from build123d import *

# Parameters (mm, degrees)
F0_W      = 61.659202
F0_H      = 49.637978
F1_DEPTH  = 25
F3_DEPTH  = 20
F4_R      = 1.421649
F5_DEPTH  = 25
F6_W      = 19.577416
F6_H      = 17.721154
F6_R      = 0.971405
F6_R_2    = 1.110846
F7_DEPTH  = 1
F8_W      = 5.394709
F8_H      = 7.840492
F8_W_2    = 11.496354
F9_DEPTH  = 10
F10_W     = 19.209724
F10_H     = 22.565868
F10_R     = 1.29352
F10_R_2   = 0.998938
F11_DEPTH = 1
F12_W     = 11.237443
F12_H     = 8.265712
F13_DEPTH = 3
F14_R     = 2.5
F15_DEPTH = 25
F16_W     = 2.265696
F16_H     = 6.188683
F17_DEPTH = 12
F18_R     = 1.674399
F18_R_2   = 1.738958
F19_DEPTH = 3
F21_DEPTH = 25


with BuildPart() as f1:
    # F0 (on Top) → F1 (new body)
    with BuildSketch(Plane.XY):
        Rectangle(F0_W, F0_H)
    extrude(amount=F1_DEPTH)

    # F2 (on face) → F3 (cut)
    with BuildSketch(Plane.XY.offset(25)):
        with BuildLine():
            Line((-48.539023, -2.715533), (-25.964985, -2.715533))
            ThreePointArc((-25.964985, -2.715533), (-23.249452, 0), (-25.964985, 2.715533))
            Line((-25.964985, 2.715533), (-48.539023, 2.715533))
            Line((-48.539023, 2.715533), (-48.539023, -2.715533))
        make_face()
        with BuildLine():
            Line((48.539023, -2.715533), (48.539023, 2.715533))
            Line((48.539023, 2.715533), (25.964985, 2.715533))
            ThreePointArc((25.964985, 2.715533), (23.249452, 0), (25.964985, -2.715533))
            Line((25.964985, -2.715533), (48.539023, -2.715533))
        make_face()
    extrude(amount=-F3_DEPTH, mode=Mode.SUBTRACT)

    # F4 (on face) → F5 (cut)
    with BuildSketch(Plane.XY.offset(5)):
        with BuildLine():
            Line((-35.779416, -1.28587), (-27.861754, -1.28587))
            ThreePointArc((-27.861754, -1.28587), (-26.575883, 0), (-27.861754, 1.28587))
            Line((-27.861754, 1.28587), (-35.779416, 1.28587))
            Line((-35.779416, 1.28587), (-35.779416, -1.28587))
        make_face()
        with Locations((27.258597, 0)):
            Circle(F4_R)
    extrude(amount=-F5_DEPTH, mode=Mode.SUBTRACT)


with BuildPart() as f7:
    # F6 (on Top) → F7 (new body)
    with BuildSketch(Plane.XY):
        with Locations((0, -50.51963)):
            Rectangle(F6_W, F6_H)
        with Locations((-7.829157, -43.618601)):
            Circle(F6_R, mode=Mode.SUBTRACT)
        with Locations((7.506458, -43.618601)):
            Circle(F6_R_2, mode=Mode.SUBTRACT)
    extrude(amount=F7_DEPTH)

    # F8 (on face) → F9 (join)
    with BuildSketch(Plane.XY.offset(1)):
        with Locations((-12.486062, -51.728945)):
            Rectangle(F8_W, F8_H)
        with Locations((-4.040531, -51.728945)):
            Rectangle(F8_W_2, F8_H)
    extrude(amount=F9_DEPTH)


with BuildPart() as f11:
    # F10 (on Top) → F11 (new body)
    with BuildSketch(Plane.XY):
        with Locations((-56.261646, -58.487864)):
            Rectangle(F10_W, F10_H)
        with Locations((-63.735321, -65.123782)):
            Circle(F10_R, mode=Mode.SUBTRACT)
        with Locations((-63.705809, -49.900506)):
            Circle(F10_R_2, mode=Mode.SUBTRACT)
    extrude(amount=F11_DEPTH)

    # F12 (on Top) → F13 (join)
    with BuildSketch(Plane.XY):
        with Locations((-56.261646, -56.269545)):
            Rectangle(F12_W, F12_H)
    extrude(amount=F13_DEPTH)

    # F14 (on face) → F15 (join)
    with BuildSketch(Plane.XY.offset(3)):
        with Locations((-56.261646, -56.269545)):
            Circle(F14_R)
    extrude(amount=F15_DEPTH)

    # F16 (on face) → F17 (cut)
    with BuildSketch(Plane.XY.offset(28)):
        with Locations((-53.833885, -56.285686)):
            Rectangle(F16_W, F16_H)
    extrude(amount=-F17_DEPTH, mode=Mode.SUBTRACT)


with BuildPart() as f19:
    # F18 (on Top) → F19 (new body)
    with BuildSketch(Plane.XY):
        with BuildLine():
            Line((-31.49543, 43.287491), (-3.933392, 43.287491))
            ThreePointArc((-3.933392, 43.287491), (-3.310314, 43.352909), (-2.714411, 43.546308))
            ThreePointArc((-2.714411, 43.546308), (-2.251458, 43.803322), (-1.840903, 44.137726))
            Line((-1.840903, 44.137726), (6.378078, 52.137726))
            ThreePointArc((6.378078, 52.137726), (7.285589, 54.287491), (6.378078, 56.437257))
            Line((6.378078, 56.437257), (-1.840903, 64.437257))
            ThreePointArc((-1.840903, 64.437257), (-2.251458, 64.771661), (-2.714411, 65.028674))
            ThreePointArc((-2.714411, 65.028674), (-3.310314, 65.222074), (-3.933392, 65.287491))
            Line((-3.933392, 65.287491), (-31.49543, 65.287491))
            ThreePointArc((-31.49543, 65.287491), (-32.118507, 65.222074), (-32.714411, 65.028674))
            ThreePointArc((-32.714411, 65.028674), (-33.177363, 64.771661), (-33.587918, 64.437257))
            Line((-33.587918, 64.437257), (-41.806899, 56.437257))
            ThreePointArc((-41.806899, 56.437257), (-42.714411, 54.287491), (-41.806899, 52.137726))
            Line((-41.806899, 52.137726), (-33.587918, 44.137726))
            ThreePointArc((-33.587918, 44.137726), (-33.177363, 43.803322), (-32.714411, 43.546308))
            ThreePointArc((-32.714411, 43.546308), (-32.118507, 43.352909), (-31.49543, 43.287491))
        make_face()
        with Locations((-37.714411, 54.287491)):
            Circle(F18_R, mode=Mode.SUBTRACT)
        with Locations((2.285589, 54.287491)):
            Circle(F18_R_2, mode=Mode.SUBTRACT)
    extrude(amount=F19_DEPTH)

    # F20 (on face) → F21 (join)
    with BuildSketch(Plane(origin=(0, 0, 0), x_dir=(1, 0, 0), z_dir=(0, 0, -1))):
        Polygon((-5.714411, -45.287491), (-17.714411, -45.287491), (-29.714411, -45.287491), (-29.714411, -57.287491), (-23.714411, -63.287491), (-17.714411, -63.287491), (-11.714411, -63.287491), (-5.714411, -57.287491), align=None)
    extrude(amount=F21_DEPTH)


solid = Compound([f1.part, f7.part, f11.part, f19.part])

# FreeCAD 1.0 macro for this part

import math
import FreeCAD as App
import Part
import Sketcher

V = App.Vector
Q = App.Units.Quantity

doc = App.newDocument("Part")
body = doc.addObject("PartDesign::Body", "Body")

sketch1 = body.newObject("Sketcher::SketchObject", "Sketch")
sketch1.AttachmentSupport = (doc.getObject("XY_Plane"), [""])
sketch1.MapMode = "FlatFace"
sketch1.addGeometry([
    Part.LineSegment(V(-31, 25, 0), V(-31, -25, 0)),
    Part.LineSegment(V(-31, -25, 0), V(31, -25, 0)),
    Part.LineSegment(V(31, -25, 0), V(31, 25, 0)),
    Part.LineSegment(V(31, 25, 0), V(-31, 25, 0)),
], False)
sketch1.addConstraint([
    Sketcher.Constraint("Coincident", 0, 2, 1, 1),
    Sketcher.Constraint("Coincident", 1, 2, 2, 1),
    Sketcher.Constraint("Coincident", 2, 2, 3, 1),
    Sketcher.Constraint("Coincident", 3, 2, 0, 1),
    Sketcher.Constraint("Vertical", 0),
    Sketcher.Constraint("Horizontal", 1),
    Sketcher.Constraint("Vertical", 2),
    Sketcher.Constraint("Horizontal", 3),
    Sketcher.Constraint("Symmetric", 0, 2, 2, 2, -1, 1),
    Sketcher.Constraint("DistanceX", 0, 2, -1, 1, Q("30.829601 mm")),
    Sketcher.Constraint("DistanceY", 0, 2, 0, 1, Q("49.637978 mm")),
])
pad1 = body.newObject("PartDesign::Pad", "Pad")
pad1.Profile = sketch1
pad1.Length = 25

sketch2 = body.newObject("Sketcher::SketchObject", "Sketch001")
sketch2.AttachmentSupport = (doc.getObject("XY_Plane"), [""])
sketch2.MapMode = "FlatFace"
sketch2.AttachmentOffset = App.Placement(V(0, 0, 25), App.Rotation())
sketch2.addGeometry([
    Part.LineSegment(V(-48.5, -2.7, 0), V(-26, -2.7, 0)),
    Part.ArcOfCircle(Part.Circle(V(-26, 0, 0), V(0, 0, 1), 2.7), math.radians(-90), math.radians(90)),
    Part.LineSegment(V(-26, 2.7, 0), V(-48.5, 2.7, 0)),
    Part.LineSegment(V(-48.5, 2.7, 0), V(-48.5, -2.7, 0)),
    Part.LineSegment(V(48.5, -2.7, 0), V(48.5, 2.7, 0)),
    Part.LineSegment(V(48.5, 2.7, 0), V(26, 2.7, 0)),
    Part.ArcOfCircle(Part.Circle(V(26, 0, 0), V(0, 0, 1), 2.7), math.radians(90), math.radians(270)),
    Part.LineSegment(V(26, -2.7, 0), V(48.5, -2.7, 0)),
], False)
sketch2.addConstraint([
    Sketcher.Constraint("Tangent", 0, 2, 1, 1),
    Sketcher.Constraint("Tangent", 1, 2, 2, 1),
    Sketcher.Constraint("Coincident", 2, 2, 3, 1),
    Sketcher.Constraint("Coincident", 3, 2, 0, 1),
    Sketcher.Constraint("Coincident", 4, 2, 5, 1),
    Sketcher.Constraint("Tangent", 5, 2, 6, 1),
    Sketcher.Constraint("Tangent", 6, 2, 7, 1),
    Sketcher.Constraint("Coincident", 7, 2, 4, 1),
    Sketcher.Constraint("Horizontal", 0),
    Sketcher.Constraint("Horizontal", 2),
    Sketcher.Constraint("Vertical", 3),
    Sketcher.Constraint("Vertical", 4),
    Sketcher.Constraint("Horizontal", 5),
    Sketcher.Constraint("Horizontal", 7),
    Sketcher.Constraint("Equal", 1, 6),
    Sketcher.Constraint("Symmetric", 1, 3, 6, 3, -1, 1),
    Sketcher.Constraint("Symmetric", 2, 2, 4, 2, -2),
    Sketcher.Constraint("Radius", 1, Q("2.715533 mm")),
    Sketcher.Constraint("DistanceX", 0, 1, 0, 2, Q("22.574038 mm")),
    Sketcher.Constraint("DistanceX", 1, 3, 6, 3, Q("51.92997 mm")),
])
pocket1 = body.newObject("PartDesign::Pocket", "Pocket")
pocket1.Profile = sketch2
pocket1.Length = 20

sketch3 = body.newObject("Sketcher::SketchObject", "Sketch002")
sketch3.AttachmentSupport = (doc.getObject("XY_Plane"), [""])
sketch3.MapMode = "FlatFace"
sketch3.AttachmentOffset = App.Placement(V(0, 0, 5), App.Rotation())
sketch3.addGeometry([
    Part.LineSegment(V(-35.8, -1.3, 0), V(-27.9, -1.3, 0)),
    Part.ArcOfCircle(Part.Circle(V(-27.9, 0, 0), V(0, 0, 1), 1.3), math.radians(-90), math.radians(90)),
    Part.LineSegment(V(-27.9, 1.3, 0), V(-35.8, 1.3, 0)),
    Part.LineSegment(V(-35.8, 1.3, 0), V(-35.8, -1.3, 0)),
    Part.Circle(V(27.3, 0, 0), V(0, 0, 1), 1.4),
], False)
sketch3.addConstraint([
    Sketcher.Constraint("Tangent", 0, 2, 1, 1),
    Sketcher.Constraint("Tangent", 1, 2, 2, 1),
    Sketcher.Constraint("Coincident", 2, 2, 3, 1),
    Sketcher.Constraint("Coincident", 3, 2, 0, 1),
    Sketcher.Constraint("Horizontal", 0),
    Sketcher.Constraint("Horizontal", 2),
    Sketcher.Constraint("Vertical", 3),
    Sketcher.Constraint("PointOnObject", 1, 3, -1),
    Sketcher.Constraint("PointOnObject", 4, 3, -1),
    Sketcher.Constraint("Radius", 1, Q("1.28587 mm")),
    Sketcher.Constraint("Diameter", 4, Q("2.843298 mm")),
    Sketcher.Constraint("DistanceX", 0, 1, 0, 2, Q("7.917662 mm")),
    Sketcher.Constraint("DistanceX", 1, 3, 4, 3, Q("55.12035 mm")),
    Sketcher.Constraint("DistanceX", 1, 3, -1, 1, Q("27.861753 mm")),
])
pocket2 = body.newObject("PartDesign::Pocket", "Pocket001")
pocket2.Profile = sketch3
pocket2.Length = 25
body2 = doc.addObject("PartDesign::Body", "Body001")

sketch4 = body2.newObject("Sketcher::SketchObject", "Sketch003")
sketch4.AttachmentSupport = (doc.getObject("XY_Plane001"), [""])
sketch4.MapMode = "FlatFace"
sketch4.addGeometry([
    Part.LineSegment(V(-9.8, -41.7, 0), V(-9.8, -59.4, 0)),
    Part.LineSegment(V(-9.8, -59.4, 0), V(9.8, -59.4, 0)),
    Part.LineSegment(V(9.8, -59.4, 0), V(9.8, -41.7, 0)),
    Part.LineSegment(V(9.8, -41.7, 0), V(-9.8, -41.7, 0)),
    Part.Circle(V(-7.8, -43.6, 0), V(0, 0, 1), 1),
    Part.Circle(V(7.5, -43.6, 0), V(0, 0, 1), 1.1),
], False)
sketch4.addConstraint([
    Sketcher.Constraint("Coincident", 0, 2, 1, 1),
    Sketcher.Constraint("Coincident", 1, 2, 2, 1),
    Sketcher.Constraint("Coincident", 2, 2, 3, 1),
    Sketcher.Constraint("Coincident", 3, 2, 0, 1),
    Sketcher.Constraint("Vertical", 0),
    Sketcher.Constraint("Horizontal", 1),
    Sketcher.Constraint("Vertical", 2),
    Sketcher.Constraint("Horizontal", 3),
    Sketcher.Constraint("Horizontal", 4, 3, 5, 3),
    Sketcher.Constraint("Diameter", 4, Q("1.94281 mm")),
    Sketcher.Constraint("Diameter", 5, Q("2.221692 mm")),
    Sketcher.Constraint("DistanceY", 4, 3, -1, 1, Q("43.618601 mm")),
    Sketcher.Constraint("DistanceX", 1, 1, 1, 2, Q("19.577416 mm")),
    Sketcher.Constraint("DistanceY", 0, 2, 0, 1, Q("17.721154 mm")),
    Sketcher.Constraint("DistanceX", -1, 1, 5, 3, Q("7.506458 mm")),
    Sketcher.Constraint("DistanceX", 0, 2, 4, 3, Q("1.959551 mm")),
    Sketcher.Constraint("DistanceX", 5, 3, 1, 2, Q("2.28225 mm")),
    Sketcher.Constraint("DistanceY", 0, 2, -1, 1, Q("59.380207 mm")),
])
pad2 = body2.newObject("PartDesign::Pad", "Pad001")
pad2.Profile = sketch4
pad2.Length = 1

sketch5 = body2.newObject("Sketcher::SketchObject", "Sketch004")
sketch5.AttachmentSupport = (doc.getObject("XY_Plane001"), [""])
sketch5.MapMode = "FlatFace"
sketch5.AttachmentOffset = App.Placement(V(0, 0, 1), App.Rotation())
sketch5.addGeometry([
    Part.LineSegment(V(-15, -48, 0), V(-15, -56, 0)),
    Part.LineSegment(V(-15, -56, 0), V(2, -56, 0)),
    Part.LineSegment(V(2, -56, 0), V(2, -48, 0)),
    Part.LineSegment(V(2, -48, 0), V(-15, -48, 0)),
], False)
sketch5.addConstraint([
    Sketcher.Constraint("Coincident", 0, 2, 1, 1),
    Sketcher.Constraint("Coincident", 1, 2, 2, 1),
    Sketcher.Constraint("Coincident", 2, 2, 3, 1),
    Sketcher.Constraint("Coincident", 3, 2, 0, 1),
    Sketcher.Constraint("Vertical", 0),
    Sketcher.Constraint("Horizontal", 1),
    Sketcher.Constraint("Vertical", 2),
    Sketcher.Constraint("Horizontal", 3),
    Sketcher.Constraint("DistanceY", 2, 2, -1, 1, Q("47.808699 mm")),
    Sketcher.Constraint("DistanceX", 1, 1, 1, 2, Q("16.891063 mm")),
    Sketcher.Constraint("DistanceY", 0, 2, 0, 1, Q("7.840492 mm")),
    Sketcher.Constraint("DistanceX", 0, 2, -1, 1, Q("15.183416 mm")),
])
pad3 = body2.newObject("PartDesign::Pad", "Pad002")
pad3.Profile = sketch5
pad3.Length = 10
body3 = doc.addObject("PartDesign::Body", "Body002")

sketch6 = body3.newObject("Sketcher::SketchObject", "Sketch005")
sketch6.AttachmentSupport = (doc.getObject("XY_Plane002"), [""])
sketch6.MapMode = "FlatFace"
sketch6.addGeometry([
    Part.LineSegment(V(-65.9, -47.2, 0), V(-65.9, -69.8, 0)),
    Part.LineSegment(V(-65.9, -69.8, 0), V(-46.7, -69.8, 0)),
    Part.LineSegment(V(-46.7, -69.8, 0), V(-46.7, -47.2, 0)),
    Part.LineSegment(V(-46.7, -47.2, 0), V(-65.9, -47.2, 0)),
    Part.Circle(V(-63.7, -65.1, 0), V(0, 0, 1), 1.3),
    Part.Circle(V(-63.7, -49.9, 0), V(0, 0, 1), 1),
], False)
sketch6.addConstraint([
    Sketcher.Constraint("Coincident", 0, 2, 1, 1),
    Sketcher.Constraint("Coincident", 1, 2, 2, 1),
    Sketcher.Constraint("Coincident", 2, 2, 3, 1),
    Sketcher.Constraint("Coincident", 3, 2, 0, 1),
    Sketcher.Constraint("Vertical", 0),
    Sketcher.Constraint("Horizontal", 1),
    Sketcher.Constraint("Vertical", 2),
    Sketcher.Constraint("Horizontal", 3),
    Sketcher.Constraint("Diameter", 4, Q("2.58704 mm")),
    Sketcher.Constraint("Diameter", 5, Q("1.997876 mm")),
    Sketcher.Constraint("DistanceY", 0, 2, 0, 1, Q("22.565868 mm")),
    Sketcher.Constraint("DistanceY", 0, 2, -1, 1, Q("69.770798 mm")),
    Sketcher.Constraint("DistanceX", 0, 2, 5, 3, Q("2.160699 mm")),
    Sketcher.Constraint("DistanceX", 1, 1, 1, 2, Q("19.209724 mm")),
    Sketcher.Constraint("DistanceX", 4, 3, -1, 1, Q("63.735321 mm")),
    Sketcher.Constraint("DistanceX", 5, 3, -1, 1, Q("63.705809 mm")),
    Sketcher.Constraint("DistanceY", 0, 2, 5, 3, Q("19.870292 mm")),
    Sketcher.Constraint("DistanceY", 4, 3, -1, 1, Q("65.123782 mm")),
])
pad4 = body3.newObject("PartDesign::Pad", "Pad003")
pad4.Profile = sketch6
pad4.Length = 1

sketch7 = body3.newObject("Sketcher::SketchObject", "Sketch006")
sketch7.AttachmentSupport = (doc.getObject("XY_Plane002"), [""])
sketch7.MapMode = "FlatFace"
sketch7.addGeometry([
    Part.LineSegment(V(-62, -52, 0), V(-62, -60, 0)),
    Part.LineSegment(V(-62, -60, 0), V(-51, -60, 0)),
    Part.LineSegment(V(-51, -60, 0), V(-51, -52, 0)),
    Part.LineSegment(V(-51, -52, 0), V(-62, -52, 0)),
], False)
sketch7.addConstraint([
    Sketcher.Constraint("Coincident", 0, 2, 1, 1),
    Sketcher.Constraint("Coincident", 1, 2, 2, 1),
    Sketcher.Constraint("Coincident", 2, 2, 3, 1),
    Sketcher.Constraint("Coincident", 3, 2, 0, 1),
    Sketcher.Constraint("Vertical", 0),
    Sketcher.Constraint("Horizontal", 1),
    Sketcher.Constraint("Vertical", 2),
    Sketcher.Constraint("Horizontal", 3),
    Sketcher.Constraint("DistanceY", 0, 2, -1, 1, Q("60.402401 mm")),
    Sketcher.Constraint("DistanceX", 1, 1, 1, 2, Q("11.237443 mm")),
    Sketcher.Constraint("DistanceY", 0, 2, 0, 1, Q("8.265712 mm")),
    Sketcher.Constraint("DistanceX", 0, 2, -1, 1, Q("61.880367 mm")),
])
pad5 = body3.newObject("PartDesign::Pad", "Pad004")
pad5.Profile = sketch7
pad5.Length = 3

sketch8 = body3.newObject("Sketcher::SketchObject", "Sketch007")
sketch8.AttachmentSupport = (doc.getObject("XY_Plane002"), [""])
sketch8.MapMode = "FlatFace"
sketch8.AttachmentOffset = App.Placement(V(0, 0, 3), App.Rotation())
sketch8.addGeometry(Part.Circle(V(-56.3, -56.3, 0), V(0, 0, 1), 2.5), False)
sketch8.addConstraint([
    Sketcher.Constraint("Diameter", 0, Q("5 mm")),
    Sketcher.Constraint("DistanceX", 0, 3, -1, 1, Q("56.261646 mm")),
    Sketcher.Constraint("DistanceY", 0, 3, -1, 1, Q("56.269545 mm")),
])
pad6 = body3.newObject("PartDesign::Pad", "Pad005")
pad6.Profile = sketch8
pad6.Length = 25

sketch9 = body3.newObject("Sketcher::SketchObject", "Sketch008")
sketch9.AttachmentSupport = (doc.getObject("XY_Plane002"), [""])
sketch9.MapMode = "FlatFace"
sketch9.AttachmentOffset = App.Placement(V(0, 0, 28), App.Rotation())
sketch9.addGeometry([
    Part.LineSegment(V(-55, -53.2, 0), V(-55, -59.4, 0)),
    Part.LineSegment(V(-55, -59.4, 0), V(-52.7, -59.4, 0)),
    Part.LineSegment(V(-52.7, -59.4, 0), V(-52.7, -53.2, 0)),
    Part.LineSegment(V(-52.7, -53.2, 0), V(-55, -53.2, 0)),
], False)
sketch9.addConstraint([
    Sketcher.Constraint("Coincident", 0, 2, 1, 1),
    Sketcher.Constraint("Coincident", 1, 2, 2, 1),
    Sketcher.Constraint("Coincident", 2, 2, 3, 1),
    Sketcher.Constraint("Coincident", 3, 2, 0, 1),
    Sketcher.Constraint("Vertical", 0),
    Sketcher.Constraint("Horizontal", 1),
    Sketcher.Constraint("Vertical", 2),
    Sketcher.Constraint("Horizontal", 3),
    Sketcher.Constraint("DistanceX", 1, 1, 1, 2, Q("2.265696 mm")),
    Sketcher.Constraint("DistanceY", 0, 2, 0, 1, Q("6.188683 mm")),
    Sketcher.Constraint("DistanceX", 0, 2, -1, 1, Q("54.966733 mm")),
    Sketcher.Constraint("DistanceY", 0, 2, -1, 1, Q("59.380027 mm")),
])
pocket3 = body3.newObject("PartDesign::Pocket", "Pocket002")
pocket3.Profile = sketch9
pocket3.Length = 12
body4 = doc.addObject("PartDesign::Body", "Body003")

sketch10 = body4.newObject("Sketcher::SketchObject", "Sketch009")
sketch10.AttachmentSupport = (doc.getObject("XY_Plane003"), [""])
sketch10.MapMode = "FlatFace"
sketch10.addGeometry([
    Part.LineSegment(V(-31.49543, 43.287491, 0), V(-3.933392, 43.287491, 0)),
    Part.ArcOfCircle(Part.Circle(V(-3.933395, 46.287504, 0), V(0, 0, 1), 3.000013), math.radians(-89.999939), math.radians(-66.025733)),
    Part.ArcOfCircle(Part.Circle(V(-3.933402, 46.287507, 0), V(0, 0, 1), 3.000018), math.radians(-66.025633), math.radians(-45.773591)),
    Part.LineSegment(V(-1.840903, 44.137726, 0), V(6.378078, 52.137726, 0)),
    Part.ArcOfCircle(Part.Circle(V(4.285588, 54.287492, 0), V(0, 0, 1), 3.000001), math.radians(-45.773513), math.radians(45.773513)),
    Part.LineSegment(V(6.378078, 56.437257, 0), V(-1.840903, 64.437257, 0)),
    Part.ArcOfCircle(Part.Circle(V(-3.933384, 62.287499, 0), V(0, 0, 1), 2.999989), math.radians(45.773542), math.radians(66.025772)),
    Part.ArcOfCircle(Part.Circle(V(-3.933386, 62.287522, 0), V(0, 0, 1), 2.999969), math.radians(66.025555), math.radians(90.000117)),
    Part.LineSegment(V(-3.933392, 65.287491, 0), V(-31.49543, 65.287491, 0)),
    Part.ArcOfCircle(Part.Circle(V(-31.495434, 62.287513, 0), V(0, 0, 1), 2.999978), math.radians(89.999921), math.radians(113.974407)),
    Part.ArcOfCircle(Part.Circle(V(-31.495429, 62.287489, 0), V(0, 0, 1), 3.000002), math.radians(113.974311), math.radians(134.226436)),
    Part.LineSegment(V(-33.587918, 64.437257, 0), V(-41.806899, 56.437257, 0)),
    Part.ArcOfCircle(Part.Circle(V(-39.714412, 54.287492, 0), V(0, 0, 1), 2.999999), math.radians(134.226441), math.radians(225.773559)),
    Part.LineSegment(V(-41.806899, 52.137726, 0), V(-33.587918, 44.137726, 0)),
    Part.ArcOfCircle(Part.Circle(V(-31.495411, 46.287517, 0), V(0, 0, 1), 3.000031), math.radians(-134.226386), math.radians(-113.97445)),
    Part.ArcOfCircle(Part.Circle(V(-31.495425, 46.287513, 0), V(0, 0, 1), 3.000022), math.radians(-113.974229), math.radians(-90.000099)),
    Part.Circle(V(-37.714411, 54.287491, 0), V(0, 0, 1), 1.674399),
    Part.Circle(V(2.285589, 54.287491, 0), V(0, 0, 1), 1.738958),
], False)
sketch10.addConstraint([
    Sketcher.Constraint("Coincident", 0, 2, 1, 1),
    Sketcher.Constraint("Coincident", 1, 2, 2, 1),
    Sketcher.Constraint("Coincident", 2, 2, 3, 1),
    Sketcher.Constraint("Coincident", 3, 2, 4, 1),
    Sketcher.Constraint("Coincident", 4, 2, 5, 1),
    Sketcher.Constraint("Coincident", 5, 2, 6, 1),
    Sketcher.Constraint("Coincident", 6, 2, 7, 1),
    Sketcher.Constraint("Coincident", 7, 2, 8, 1),
    Sketcher.Constraint("Coincident", 8, 2, 9, 1),
    Sketcher.Constraint("Coincident", 9, 2, 10, 1),
    Sketcher.Constraint("Coincident", 10, 2, 11, 1),
    Sketcher.Constraint("Coincident", 11, 2, 12, 1),
    Sketcher.Constraint("Coincident", 12, 2, 13, 1),
    Sketcher.Constraint("Coincident", 13, 2, 14, 1),
    Sketcher.Constraint("Coincident", 14, 2, 15, 1),
    Sketcher.Constraint("Coincident", 15, 2, 0, 1),
    Sketcher.Constraint("Horizontal", 0),
    Sketcher.Constraint("Horizontal", 8),
    Sketcher.Constraint("Coincident", 2, 3, 1, 3),
    Sketcher.Constraint("Radius", 4, Q("3.000001 mm")),
    Sketcher.Constraint("Radius", 10, Q("3.000002 mm")),
    Sketcher.Constraint("Radius", 12, Q("2.999999 mm")),
    Sketcher.Constraint("DistanceY", 15, 3, 9, 3, Q("15.999999 mm")),
    Sketcher.Constraint("DistanceX", 12, 3, 16, 3, Q("2.000001 mm")),
    Sketcher.Constraint("DistanceY", 16, 3, 10, 3, Q("7.999998 mm")),
    Sketcher.Constraint("DistanceX", 17, 3, 4, 3, Q("1.999999 mm")),
    Sketcher.Constraint("DistanceY", 0, 2, 17, 3, Q("11 mm")),
    Sketcher.Constraint("DistanceY", 0, 2, 4, 3, Q("11 mm")),
    Sketcher.Constraint("DistanceX", 1, 2, 17, 3, Q("5 mm")),
    Sketcher.Constraint("DistanceY", 2, 2, 3, 2, Q("8 mm")),
    Sketcher.Constraint("DistanceY", 4, 2, 5, 2, Q("8 mm")),
    Sketcher.Constraint("DistanceX", 6, 2, 17, 3, Q("5 mm")),
    Sketcher.Constraint("DistanceY", 17, 3, 7, 2, Q("11 mm")),
    Sketcher.Constraint("DistanceY", 10, 3, 8, 2, Q("3.000002 mm")),
    Sketcher.Constraint("DistanceY", 12, 3, 8, 2, Q("11 mm")),
    Sketcher.Constraint("DistanceX", 16, 3, 9, 2, Q("5 mm")),
    Sketcher.Constraint("DistanceY", 11, 2, 10, 2, Q("8 mm")),
    Sketcher.Constraint("DistanceY", 13, 2, 12, 2, Q("8 mm")),
    Sketcher.Constraint("DistanceX", 16, 3, 14, 2, Q("5 mm")),
    Sketcher.Constraint("Radius", 2, Q("3.000018 mm")),
    Sketcher.Constraint("Radius", 6, Q("2.999989 mm")),
    Sketcher.Constraint("Radius", 7, Q("2.999969 mm")),
    Sketcher.Constraint("Radius", 9, Q("2.999978 mm")),
    Sketcher.Constraint("Radius", 14, Q("3.000031 mm")),
    Sketcher.Constraint("Diameter", 16, Q("3.348798 mm")),
    Sketcher.Constraint("Diameter", 17, Q("3.477916 mm")),
    Sketcher.Constraint("DistanceX", 12, 3, 14, 3, Q("8.219002 mm")),
    Sketcher.Constraint("DistanceY", -1, 1, 6, 3, Q("62.287499 mm")),
    Sketcher.Constraint("DistanceX", 11, 2, -1, 1, Q("41.806899 mm")),
    Sketcher.Constraint("DistanceX", 12, 2, -1, 1, Q("41.806899 mm")),
    Sketcher.Constraint("DistanceY", 1, 2, 2, 3, Q("2.741199 mm")),
    Sketcher.Constraint("DistanceX", 2, 3, 2, 2, Q("2.092499 mm")),
    Sketcher.Constraint("DistanceX", 0, 1, 0, 2, Q("27.562038 mm")),
    Sketcher.Constraint("DistanceX", 8, 2, 8, 1, Q("27.562038 mm")),
    Sketcher.Constraint("DistanceY", -1, 1, 4, 3, Q("54.287492 mm")),
    Sketcher.Constraint("DistanceX", 10, 3, -1, 1, Q("31.495429 mm")),
    Sketcher.Constraint("DistanceX", 14, 3, -1, 1, Q("31.495411 mm")),
    Sketcher.Constraint("DistanceX", -1, 1, 17, 3, Q("2.285589 mm")),
    Sketcher.Constraint("DistanceX", 0, 2, -1, 1, Q("3.933392 mm")),
    Sketcher.Constraint("DistanceX", -1, 1, 4, 2, Q("6.378078 mm")),
    Sketcher.Constraint("DistanceX", 7, 2, -1, 1, Q("3.933392 mm")),
    Sketcher.Constraint("DistanceX", 13, 2, -1, 1, Q("33.587918 mm")),
    Sketcher.Constraint("DistanceX", 6, 3, 4, 3, Q("8.218971 mm")),
])
pad7 = body4.newObject("PartDesign::Pad", "Pad006")
pad7.Profile = sketch10
pad7.Length = 3

sketch11 = body4.newObject("Sketcher::SketchObject", "Sketch010")
sketch11.AttachmentSupport = (doc.getObject("XY_Plane003"), [""])
sketch11.MapMode = "FlatFace"
sketch11.addGeometry([
    Part.LineSegment(V(-6, 45, 0), V(-30, 45, 0)),
    Part.LineSegment(V(-30, 45, 0), V(-30, 57, 0)),
    Part.LineSegment(V(-30, 57, 0), V(-24, 63, 0)),
    Part.LineSegment(V(-24, 63, 0), V(-12, 63, 0)),
    Part.LineSegment(V(-12, 63, 0), V(-6, 57, 0)),
    Part.LineSegment(V(-6, 57, 0), V(-6, 45, 0)),
], False)
sketch11.addConstraint([
    Sketcher.Constraint("Coincident", 0, 2, 1, 1),
    Sketcher.Constraint("Coincident", 1, 2, 2, 1),
    Sketcher.Constraint("Coincident", 2, 2, 3, 1),
    Sketcher.Constraint("Coincident", 3, 2, 4, 1),
    Sketcher.Constraint("Coincident", 4, 2, 5, 1),
    Sketcher.Constraint("Coincident", 5, 2, 0, 1),
    Sketcher.Constraint("Horizontal", 0),
    Sketcher.Constraint("Vertical", 1),
    Sketcher.Constraint("Horizontal", 3),
    Sketcher.Constraint("Vertical", 5),
    Sketcher.Constraint("Perpendicular", 2, 4),
    Sketcher.Constraint("Horizontal", 1, 2, 4, 2),
    Sketcher.Constraint("Equal", 3, 1),
    Sketcher.Constraint("Equal", 2, 4),
    Sketcher.Constraint("DistanceX", 0, 2, 0, 1, Q("24 mm")),
    Sketcher.Constraint("DistanceX", 3, 1, 3, 2, Q("12 mm")),
    Sketcher.Constraint("DistanceX", 0, 2, -1, 1, Q("29.714411 mm")),
    Sketcher.Constraint("DistanceY", -1, 1, 0, 2, Q("45.287491 mm")),
])
pad8 = body4.newObject("PartDesign::Pad", "Pad007")
pad8.Profile = sketch11
pad8.Length = 25
pad8.Reversed = True

doc.recompute()
